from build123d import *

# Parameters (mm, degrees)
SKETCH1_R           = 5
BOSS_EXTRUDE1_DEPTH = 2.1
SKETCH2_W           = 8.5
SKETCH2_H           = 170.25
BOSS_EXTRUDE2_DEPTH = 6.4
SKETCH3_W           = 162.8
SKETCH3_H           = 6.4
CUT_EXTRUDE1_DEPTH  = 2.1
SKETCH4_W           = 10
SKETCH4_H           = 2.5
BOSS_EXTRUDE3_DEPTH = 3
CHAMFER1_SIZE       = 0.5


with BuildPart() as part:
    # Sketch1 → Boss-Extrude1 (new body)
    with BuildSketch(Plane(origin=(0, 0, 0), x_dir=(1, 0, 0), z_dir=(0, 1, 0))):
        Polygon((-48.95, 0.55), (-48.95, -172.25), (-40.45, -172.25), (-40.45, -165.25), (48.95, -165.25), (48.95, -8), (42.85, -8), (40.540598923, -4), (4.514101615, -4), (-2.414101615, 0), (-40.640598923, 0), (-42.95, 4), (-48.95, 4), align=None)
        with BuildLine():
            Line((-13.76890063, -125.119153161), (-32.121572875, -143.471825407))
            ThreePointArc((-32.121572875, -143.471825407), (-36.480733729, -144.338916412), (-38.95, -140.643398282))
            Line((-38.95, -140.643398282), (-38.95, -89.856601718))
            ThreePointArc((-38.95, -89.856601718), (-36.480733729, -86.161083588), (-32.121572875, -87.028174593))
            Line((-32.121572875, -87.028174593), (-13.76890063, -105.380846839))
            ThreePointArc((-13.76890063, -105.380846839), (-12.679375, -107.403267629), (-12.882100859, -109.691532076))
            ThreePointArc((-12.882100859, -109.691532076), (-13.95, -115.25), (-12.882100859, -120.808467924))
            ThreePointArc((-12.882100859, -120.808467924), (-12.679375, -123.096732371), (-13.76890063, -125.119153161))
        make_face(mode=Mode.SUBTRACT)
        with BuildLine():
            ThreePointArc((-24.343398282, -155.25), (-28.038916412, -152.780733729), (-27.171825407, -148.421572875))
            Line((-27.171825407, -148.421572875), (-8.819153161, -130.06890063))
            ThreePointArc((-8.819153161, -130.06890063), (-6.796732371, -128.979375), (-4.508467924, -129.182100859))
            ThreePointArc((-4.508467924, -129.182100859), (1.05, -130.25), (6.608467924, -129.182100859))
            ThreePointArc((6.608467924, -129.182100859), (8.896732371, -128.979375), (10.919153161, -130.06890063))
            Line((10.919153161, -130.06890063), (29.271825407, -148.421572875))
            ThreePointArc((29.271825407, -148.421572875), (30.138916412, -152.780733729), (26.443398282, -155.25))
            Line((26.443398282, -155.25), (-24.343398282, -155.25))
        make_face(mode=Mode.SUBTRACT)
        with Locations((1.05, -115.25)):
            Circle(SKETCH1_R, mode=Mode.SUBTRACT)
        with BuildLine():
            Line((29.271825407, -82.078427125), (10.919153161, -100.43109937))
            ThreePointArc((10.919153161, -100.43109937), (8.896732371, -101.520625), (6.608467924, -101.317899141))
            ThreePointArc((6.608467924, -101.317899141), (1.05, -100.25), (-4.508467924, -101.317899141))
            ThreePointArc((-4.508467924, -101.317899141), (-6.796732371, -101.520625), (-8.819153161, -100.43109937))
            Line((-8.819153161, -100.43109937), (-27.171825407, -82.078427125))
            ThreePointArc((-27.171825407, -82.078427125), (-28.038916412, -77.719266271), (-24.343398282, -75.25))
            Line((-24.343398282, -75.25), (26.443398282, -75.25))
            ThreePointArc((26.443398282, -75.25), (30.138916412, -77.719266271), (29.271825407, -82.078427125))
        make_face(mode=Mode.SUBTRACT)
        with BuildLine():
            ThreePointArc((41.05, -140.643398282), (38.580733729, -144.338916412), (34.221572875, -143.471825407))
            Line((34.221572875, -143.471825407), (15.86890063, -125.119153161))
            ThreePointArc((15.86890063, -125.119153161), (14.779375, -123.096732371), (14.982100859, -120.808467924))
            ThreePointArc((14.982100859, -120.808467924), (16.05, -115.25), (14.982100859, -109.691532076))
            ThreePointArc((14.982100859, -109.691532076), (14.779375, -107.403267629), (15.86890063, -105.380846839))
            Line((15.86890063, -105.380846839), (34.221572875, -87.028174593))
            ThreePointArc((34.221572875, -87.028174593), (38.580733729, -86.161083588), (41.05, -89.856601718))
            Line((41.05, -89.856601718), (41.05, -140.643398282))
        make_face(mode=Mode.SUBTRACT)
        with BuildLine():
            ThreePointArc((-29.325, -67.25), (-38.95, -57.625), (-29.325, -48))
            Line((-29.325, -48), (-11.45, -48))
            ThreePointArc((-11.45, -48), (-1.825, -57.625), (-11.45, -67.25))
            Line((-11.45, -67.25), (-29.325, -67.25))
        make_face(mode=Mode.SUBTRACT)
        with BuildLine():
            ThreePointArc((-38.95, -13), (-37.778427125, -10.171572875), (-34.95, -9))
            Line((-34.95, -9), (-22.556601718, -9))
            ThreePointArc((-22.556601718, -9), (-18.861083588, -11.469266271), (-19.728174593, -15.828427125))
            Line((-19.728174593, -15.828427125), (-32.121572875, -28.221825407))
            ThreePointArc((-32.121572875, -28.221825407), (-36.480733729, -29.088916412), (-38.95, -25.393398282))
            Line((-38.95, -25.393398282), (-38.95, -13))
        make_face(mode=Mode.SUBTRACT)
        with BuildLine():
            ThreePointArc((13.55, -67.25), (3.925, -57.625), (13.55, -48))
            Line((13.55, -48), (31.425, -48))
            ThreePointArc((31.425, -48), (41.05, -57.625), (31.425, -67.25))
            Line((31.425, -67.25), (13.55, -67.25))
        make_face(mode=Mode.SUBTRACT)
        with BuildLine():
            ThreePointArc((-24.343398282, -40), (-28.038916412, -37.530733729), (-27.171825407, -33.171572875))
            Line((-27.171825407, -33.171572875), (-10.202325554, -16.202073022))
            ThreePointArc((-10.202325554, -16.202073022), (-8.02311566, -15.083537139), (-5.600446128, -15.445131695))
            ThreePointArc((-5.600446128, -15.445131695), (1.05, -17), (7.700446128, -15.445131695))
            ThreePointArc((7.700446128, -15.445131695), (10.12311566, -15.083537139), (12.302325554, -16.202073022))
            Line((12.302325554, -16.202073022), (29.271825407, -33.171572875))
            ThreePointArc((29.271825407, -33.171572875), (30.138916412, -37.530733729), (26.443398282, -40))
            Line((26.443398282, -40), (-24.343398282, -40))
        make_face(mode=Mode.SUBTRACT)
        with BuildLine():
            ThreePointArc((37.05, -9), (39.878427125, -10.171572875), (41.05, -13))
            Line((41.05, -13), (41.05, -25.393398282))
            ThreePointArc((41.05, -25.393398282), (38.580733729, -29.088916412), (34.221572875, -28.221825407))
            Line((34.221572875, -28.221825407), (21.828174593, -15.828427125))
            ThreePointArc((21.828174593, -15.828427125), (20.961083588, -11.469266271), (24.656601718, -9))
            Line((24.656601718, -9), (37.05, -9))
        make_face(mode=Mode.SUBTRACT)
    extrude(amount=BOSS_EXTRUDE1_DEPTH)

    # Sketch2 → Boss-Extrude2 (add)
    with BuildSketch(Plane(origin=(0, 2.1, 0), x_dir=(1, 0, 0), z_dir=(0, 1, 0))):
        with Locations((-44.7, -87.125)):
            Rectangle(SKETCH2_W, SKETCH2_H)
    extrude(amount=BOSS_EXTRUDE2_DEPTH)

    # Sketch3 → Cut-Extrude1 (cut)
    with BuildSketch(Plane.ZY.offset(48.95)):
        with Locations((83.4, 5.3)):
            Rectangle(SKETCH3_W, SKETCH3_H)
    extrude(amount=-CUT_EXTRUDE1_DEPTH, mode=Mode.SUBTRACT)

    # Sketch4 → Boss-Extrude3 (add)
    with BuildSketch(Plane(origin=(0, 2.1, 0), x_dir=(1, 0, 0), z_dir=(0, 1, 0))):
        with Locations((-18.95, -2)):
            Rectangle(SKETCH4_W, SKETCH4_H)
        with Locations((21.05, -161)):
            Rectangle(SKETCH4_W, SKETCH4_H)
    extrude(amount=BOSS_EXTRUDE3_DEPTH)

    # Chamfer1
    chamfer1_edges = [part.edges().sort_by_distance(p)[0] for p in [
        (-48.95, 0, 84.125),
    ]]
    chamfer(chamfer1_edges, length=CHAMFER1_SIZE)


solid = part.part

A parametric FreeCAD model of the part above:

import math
import FreeCAD as App
import Part
import Sketcher
Q = App.Units.Quantity


def edges_at(feature, points):
    """Names of the edges that pass closest to the given points."""
    edges = feature.Shape.Edges
    near = lambda p: min(range(len(edges)), key=lambda i: edges[i].distToShape(Part.Vertex(*p))[0])
    return sorted({f"Edge{near(p) + 1}" for p in points})

doc = App.newDocument("Part")
body = doc.addObject("PartDesign::Body", "Body")

sketch1 = doc.addObject("Sketcher::SketchObject", "Sketch")
body.addObject(sketch1)
sketch1.AttachmentSupport = (doc.XZ_Plane, [""])
sketch1.MapMode = "FlatFace"
sketch1.addGeometry([
    Part.LineSegment(App.Vector(-49, 172.2, 0), App.Vector(-40.5, 172.2, 0)),
    Part.LineSegment(App.Vector(-40.5, 172.2, 0), App.Vector(-40.5, 165.2, 0)),
    Part.LineSegment(App.Vector(-40.5, 165.2, 0), App.Vector(49, 165.2, 0)),
    Part.LineSegment(App.Vector(49, 165.2, 0), App.Vector(49, 8, 0)),
    Part.LineSegment(App.Vector(49, 8, 0), App.Vector(42.9, 8, 0)),
    Part.LineSegment(App.Vector(42.9, 8, 0), App.Vector(40.5, 4, 0)),
    Part.LineSegment(App.Vector(40.5, 4, 0), App.Vector(4.5, 4, 0)),
    Part.LineSegment(App.Vector(4.5, 4, 0), App.Vector(-2.4, 0, 0)),
    Part.LineSegment(App.Vector(-2.4, 0, 0), App.Vector(-40.6, 0, 0)),
    Part.LineSegment(App.Vector(-40.6, 0, 0), App.Vector(-43, -4, 0)),
    Part.LineSegment(App.Vector(-43, -4, 0), App.Vector(-49, -4, 0)),
    Part.LineSegment(App.Vector(-49, -4, 0), App.Vector(-49, 172.2, 0)),
    Part.ArcOfCircle(Part.Circle(App.Vector(-16.6, 122.3, 0), App.Vector(0, 0, 1), 4), math.radians(-22), math.radians(45)),
    Part.LineSegment(App.Vector(-13.8, 125.1, 0), App.Vector(-32.1, 143.5, 0)),
    Part.ArcOfCircle(Part.Circle(App.Vector(-35, 140.6, 0), App.Vector(0, 0, 1), 4), math.radians(45), math.radians(180)),
    Part.LineSegment(App.Vector(-39, 140.6, 0), App.Vector(-39, 89.9, 0)),
    Part.ArcOfCircle(Part.Circle(App.Vector(-35, 89.9, 0), App.Vector(0, 0, 1), 4), math.radians(-180), math.radians(-45)),
    Part.LineSegment(App.Vector(-32.1, 87, 0), App.Vector(-13.8, 105.4, 0)),
    Part.ArcOfCircle(Part.Circle(App.Vector(-16.6, 108.2, 0), App.Vector(0, 0, 1), 4), math.radians(-45), math.radians(22)),
    Part.ArcOfCircle(Part.Circle(App.Vector(1.1, 115.2, 0), App.Vector(0, 0, 1), 15), math.radians(158), math.radians(202)),
    Part.LineSegment(App.Vector(26.4, 155.2, 0), App.Vector(-24.3, 155.2, 0)),
    Part.ArcOfCircle(Part.Circle(App.Vector(-24.3, 151.2, 0), App.Vector(0, 0, 1), 4), math.radians(90), math.radians(225)),
    Part.LineSegment(App.Vector(-27.2, 148.4, 0), App.Vector(-8.8, 130.1, 0)),
    Part.ArcOfCircle(Part.Circle(App.Vector(-6, 132.9, 0), App.Vector(0, 0, 1), 4), math.radians(-135), math.radians(-68)),
    Part.ArcOfCircle(Part.Circle(App.Vector(1.1, 115.2, 0), App.Vector(0, 0, 1), 15), math.radians(68), math.radians(112)),
    Part.ArcOfCircle(Part.Circle(App.Vector(8.1, 132.9, 0), App.Vector(0, 0, 1), 4), math.radians(-112), math.radians(-45)),
    Part.LineSegment(App.Vector(10.9, 130.1, 0), App.Vector(29.3, 148.4, 0)),
    Part.ArcOfCircle(Part.Circle(App.Vector(26.4, 151.2, 0), App.Vector(0, 0, 1), 4), math.radians(-45), math.radians(90)),
    Part.Circle(App.Vector(1.1, 115.2, 0), App.Vector(0, 0, 1), 5),
    Part.ArcOfCircle(Part.Circle(App.Vector(26.4, 79.2, 0), App.Vector(0, 0, 1), 4), math.radians(-90), math.radians(45)),
    Part.LineSegment(App.Vector(29.3, 82.1, 0), App.Vector(10.9, 100.4, 0)),
    Part.ArcOfCircle(Part.Circle(App.Vector(8.1, 97.6, 0), App.Vector(0, 0, 1), 4), math.radians(45), math.radians(112)),
    Part.ArcOfCircle(Part.Circle(App.Vector(1.1, 115.3, 0), App.Vector(0, 0, 1), 15), math.radians(-112), math.radians(-68)),
    Part.ArcOfCircle(Part.Circle(App.Vector(-6, 97.6, 0), App.Vector(0, 0, 1), 4), math.radians(68), math.radians(135)),
    Part.LineSegment(App.Vector(-8.8, 100.4, 0), App.Vector(-27.2, 82.1, 0)),
    Part.ArcOfCircle(Part.Circle(App.Vector(-24.3, 79.2, 0), App.Vector(0, 0, 1), 4), math.radians(135), math.radians(270)),
    Part.LineSegment(App.Vector(-24.3, 75.2, 0), App.Vector(26.4, 75.2, 0)),
    Part.LineSegment(App.Vector(41, 89.9, 0), App.Vector(41, 140.6, 0)),
    Part.ArcOfCircle(Part.Circle(App.Vector(37, 140.6, 0), App.Vector(0, 0, 1), 4), math.radians(0), math.radians(135)),
    Part.LineSegment(App.Vector(34.2, 143.5, 0), App.Vector(15.9, 125.1, 0)),
    Part.ArcOfCircle(Part.Circle(App.Vector(18.7, 122.3, 0), App.Vector(0, 0, 1), 4), math.radians(135), math.radians(202)),
    Part.ArcOfCircle(Part.Circle(App.Vector(1, 115.2, 0), App.Vector(0, 0, 1), 15), math.radians(-22), math.radians(22)),
    Part.ArcOfCircle(Part.Circle(App.Vector(18.7, 108.2, 0), App.Vector(0, 0, 1), 4), math.radians(158), math.radians(225)),
    Part.LineSegment(App.Vector(15.9, 105.4, 0), App.Vector(34.2, 87, 0)),
    Part.ArcOfCircle(Part.Circle(App.Vector(37, 89.9, 0), App.Vector(0, 0, 1), 4), math.radians(-135), math.radians(0)),
    Part.LineSegment(App.Vector(-11.4, 67.2, 0), App.Vector(-29.3, 67.2, 0)),
    Part.ArcOfCircle(Part.Circle(App.Vector(-29.3, 57.6, 0), App.Vector(0, 0, 1), 9.6), math.radians(90), math.radians(270)),
    Part.LineSegment(App.Vector(-29.3, 48, 0), App.Vector(-11.4, 48, 0)),
    Part.ArcOfCircle(Part.Circle(App.Vector(-11.4, 57.6, 0), App.Vector(0, 0, 1), 9.6), math.radians(-90), math.radians(90)),
    Part.LineSegment(App.Vector(-39, 25.4, 0), App.Vector(-39, 13, 0)),
    Part.ArcOfCircle(Part.Circle(App.Vector(-35, 13, 0), App.Vector(0, 0, 1), 4), math.radians(180), math.radians(270)),
    Part.LineSegment(App.Vector(-35, 9, 0), App.Vector(-22.6, 9, 0)),
    Part.ArcOfCircle(Part.Circle(App.Vector(-22.6, 13, 0), App.Vector(0, 0, 1), 4), math.radians(-90), math.radians(45)),
    Part.LineSegment(App.Vector(-19.7, 15.8, 0), App.Vector(-32.1, 28.2, 0)),
    Part.ArcOfCircle(Part.Circle(App.Vector(-35, 25.4, 0), App.Vector(0, 0, 1), 4), math.radians(45), math.radians(180)),
    Part.LineSegment(App.Vector(31.4, 67.2, 0), App.Vector(13.6, 67.2, 0)),
    Part.ArcOfCircle(Part.Circle(App.Vector(13.6, 57.6, 0), App.Vector(0, 0, 1), 9.6), math.radians(90), math.radians(270)),
    Part.LineSegment(App.Vector(13.6, 48, 0), App.Vector(31.4, 48, 0)),
    Part.ArcOfCircle(Part.Circle(App.Vector(31.4, 57.6, 0), App.Vector(0, 0, 1), 9.6), math.radians(-90), math.radians(90)),
    Part.LineSegment(App.Vector(26.4, 40, 0), App.Vector(-24.3, 40, 0)),
    Part.ArcOfCircle(Part.Circle(App.Vector(-24.3, 36, 0), App.Vector(0, 0, 1), 4), math.radians(90), math.radians(225)),
    Part.LineSegment(App.Vector(-27.2, 33.2, 0), App.Vector(-10.2, 16.2, 0)),
    Part.ArcOfCircle(Part.Circle(App.Vector(-7.4, 19, 0), App.Vector(0, 0, 1), 4), math.radians(-135), math.radians(-64)),
    Part.ArcOfCircle(Part.Circle(App.Vector(1.1, 2, 0), App.Vector(0, 0, 1), 15), math.radians(64), math.radians(116)),
    Part.ArcOfCircle(Part.Circle(App.Vector(9.5, 19, 0), App.Vector(0, 0, 1), 4), math.radians(-116), math.radians(-45)),
    Part.LineSegment(App.Vector(12.3, 16.2, 0), App.Vector(29.3, 33.2, 0)),
    Part.ArcOfCircle(Part.Circle(App.Vector(26.4, 36, 0), App.Vector(0, 0, 1), 4), math.radians(-45), math.radians(90)),
    Part.LineSegment(App.Vector(24.7, 9, 0), App.Vector(37, 9, 0)),
    Part.ArcOfCircle(Part.Circle(App.Vector(37.1, 13, 0), App.Vector(0, 0, 1), 4), math.radians(-90), math.radians(0)),
    Part.LineSegment(App.Vector(41, 13, 0), App.Vector(41, 25.4, 0)),
    Part.ArcOfCircle(Part.Circle(App.Vector(37, 25.4, 0), App.Vector(0, 0, 1), 4), math.radians(0), math.radians(135)),
    Part.LineSegment(App.Vector(34.2, 28.2, 0), App.Vector(21.8, 15.8, 0)),
    Part.ArcOfCircle(Part.Circle(App.Vector(24.7, 13, 0), App.Vector(0, 0, 1), 4), math.radians(135), math.radians(270)),
], False)
sketch1.addConstraint([
    Sketcher.Constraint("Coincident", 0, 2, 1, 1),
    Sketcher.Constraint("Coincident", 1, 2, 2, 1),
    Sketcher.Constraint("Coincident", 2, 2, 3, 1),
    Sketcher.Constraint("Coincident", 3, 2, 4, 1),
    Sketcher.Constraint("Coincident", 4, 2, 5, 1),
    Sketcher.Constraint("Coincident", 5, 2, 6, 1),
    Sketcher.Constraint("Coincident", 6, 2, 7, 1),
    Sketcher.Constraint("Coincident", 7, 2, 8, 1),
    Sketcher.Constraint("Coincident", 8, 2, 9, 1),
    Sketcher.Constraint("Coincident", 9, 2, 10, 1),
    Sketcher.Constraint("Coincident", 10, 2, 11, 1),
    Sketcher.Constraint("Coincident", 11, 2, 0, 1),
    Sketcher.Constraint("Tangent", 12, 2, 13, 1),
    Sketcher.Constraint("Tangent", 13, 2, 14, 1),
    Sketcher.Constraint("Tangent", 14, 2, 15, 1),
    Sketcher.Constraint("Tangent", 15, 2, 16, 1),
    Sketcher.Constraint("Tangent", 16, 2, 17, 1),
    Sketcher.Constraint("Tangent", 17, 2, 18, 1),
    Sketcher.Constraint("Tangent", 18, 2, 19, 2),
    Sketcher.Constraint("Tangent", 19, 1, 12, 1),
    Sketcher.Constraint("Tangent", 20, 2, 21, 1),
    Sketcher.Constraint("Tangent", 21, 2, 22, 1),
    Sketcher.Constraint("Tangent", 22, 2, 23, 1),
    Sketcher.Constraint("Tangent", 23, 2, 24, 2),
    Sketcher.Constraint("Tangent", 24, 1, 25, 1),
    Sketcher.Constraint("Tangent", 25, 2, 26, 1),
    Sketcher.Constraint("Tangent", 26, 2, 27, 1),
    Sketcher.Constraint("Tangent", 27, 2, 20, 1),
    Sketcher.Constraint("Tangent", 29, 2, 30, 1),
    Sketcher.Constraint("Tangent", 30, 2, 31, 1),
    Sketcher.Constraint("Tangent", 31, 2, 32, 2),
    Sketcher.Constraint("Tangent", 32, 1, 33, 1),
    Sketcher.Constraint("Tangent", 33, 2, 34, 1),
    Sketcher.Constraint("Tangent", 34, 2, 35, 1),
    Sketcher.Constraint("Tangent", 35, 2, 36, 1),
    Sketcher.Constraint("Tangent", 36, 2, 29, 1),
    Sketcher.Constraint("Tangent", 37, 2, 38, 1),
    Sketcher.Constraint("Tangent", 38, 2, 39, 1),
    Sketcher.Constraint("Tangent", 39, 2, 40, 1),
    Sketcher.Constraint("Tangent", 40, 2, 41, 2),
    Sketcher.Constraint("Tangent", 41, 1, 42, 1),
    Sketcher.Constraint("Tangent", 42, 2, 43, 1),
    Sketcher.Constraint("Tangent", 43, 2, 44, 1),
    Sketcher.Constraint("Tangent", 44, 2, 37, 1),
    Sketcher.Constraint("Tangent", 45, 2, 46, 1),
    Sketcher.Constraint("Tangent", 46, 2, 47, 1),
    Sketcher.Constraint("Tangent", 47, 2, 48, 1),
    Sketcher.Constraint("Tangent", 48, 2, 45, 1),
    Sketcher.Constraint("Tangent", 49, 2, 50, 1),
    Sketcher.Constraint("Tangent", 50, 2, 51, 1),
    Sketcher.Constraint("Tangent", 51, 2, 52, 1),
    Sketcher.Constraint("Tangent", 52, 2, 53, 1),
    Sketcher.Constraint("Tangent", 53, 2, 54, 1),
    Sketcher.Constraint("Tangent", 54, 2, 49, 1),
    Sketcher.Constraint("Tangent", 55, 2, 56, 1),
    Sketcher.Constraint("Tangent", 56, 2, 57, 1),
    Sketcher.Constraint("Tangent", 57, 2, 58, 1),
    Sketcher.Constraint("Tangent", 58, 2, 55, 1),
    Sketcher.Constraint("Tangent", 59, 2, 60, 1),
    Sketcher.Constraint("Tangent", 60, 2, 61, 1),
    Sketcher.Constraint("Tangent", 61, 2, 62, 1),
    Sketcher.Constraint("Tangent", 62, 2, 63, 2),
    Sketcher.Constraint("Tangent", 63, 1, 64, 1),
    Sketcher.Constraint("Tangent", 64, 2, 65, 1),
    Sketcher.Constraint("Tangent", 65, 2, 66, 1),
    Sketcher.Constraint("Tangent", 66, 2, 59, 1),
    Sketcher.Constraint("Tangent", 67, 2, 68, 1),
    Sketcher.Constraint("Tangent", 68, 2, 69, 1),
    Sketcher.Constraint("Tangent", 69, 2, 70, 1),
    Sketcher.Constraint("Tangent", 70, 2, 71, 1),
    Sketcher.Constraint("Tangent", 71, 2, 72, 1),
    Sketcher.Constraint("Tangent", 72, 2, 67, 1),
    Sketcher.Constraint("Horizontal", 0),
    Sketcher.Constraint("Vertical", 1),
    Sketcher.Constraint("Horizontal", 2),
    Sketcher.Constraint("Vertical", 3),
    Sketcher.Constraint("Horizontal", 4),
    Sketcher.Constraint("Horizontal", 6),
    Sketcher.Constraint("Horizontal", 8),
    Sketcher.Constraint("Horizontal", 10),
    Sketcher.Constraint("Vertical", 11),
    Sketcher.Constraint("Vertical", 15),
    Sketcher.Constraint("Horizontal", 20),
    Sketcher.Constraint("Horizontal", 36),
    Sketcher.Constraint("Vertical", 37),
    Sketcher.Constraint("Horizontal", 45),
    Sketcher.Constraint("Horizontal", 47),
    Sketcher.Constraint("Vertical", 49),
    Sketcher.Constraint("Horizontal", 51),
    Sketcher.Constraint("Horizontal", 55),
    Sketcher.Constraint("Horizontal", 57),
    Sketcher.Constraint("Horizontal", 59),
    Sketcher.Constraint("Horizontal", 67),
    Sketcher.Constraint("Vertical", 69),
    Sketcher.Constraint("Coincident", 24, 3, 19, 3),
    Sketcher.Constraint("Coincident", 28, 3, 19, 3),
    Sketcher.Constraint("Coincident", 32, 3, 19, 3),
    Sketcher.Constraint("Coincident", 41, 3, 19, 3),
    Sketcher.Constraint("Equal", 12, 14),
    Sketcher.Constraint("Equal", 14, 16),
    Sketcher.Constraint("Equal", 16, 18),
    Sketcher.Constraint("Equal", 18, 21),
    Sketcher.Constraint("Equal", 21, 23),
    Sketcher.Constraint("Equal", 19, 24),
    Sketcher.Constraint("Equal", 23, 25),
    Sketcher.Constraint("Equal", 25, 27),
    Sketcher.Constraint("Equal", 27, 29),
    Sketcher.Constraint("Equal", 29, 31),
    Sketcher.Constraint("Equal", 24, 32),
    Sketcher.Constraint("Equal", 31, 33),
    Sketcher.Constraint("Equal", 33, 35),
    Sketcher.Constraint("Equal", 35, 38),
    Sketcher.Constraint("Equal", 38, 40),
    Sketcher.Constraint("Equal", 32, 41),
    Sketcher.Constraint("Equal", 40, 42),
    Sketcher.Constraint("Equal", 42, 44),
    Sketcher.Constraint("Equal", 44, 50),
    Sketcher.Constraint("Equal", 50, 52),
    Sketcher.Constraint("Equal", 52, 54),
    Sketcher.Constraint("Equal", 48, 56),
    Sketcher.Constraint("Equal", 54, 60),
    Sketcher.Constraint("Equal", 60, 62),
    Sketcher.Constraint("Equal", 41, 63),
    Sketcher.Constraint("Equal", 62, 64),
    Sketcher.Constraint("Equal", 64, 66),
    Sketcher.Constraint("Equal", 66, 68),
    Sketcher.Constraint("Equal", 68, 70),
    Sketcher.Constraint("Equal", 70, 72),
    Sketcher.Constraint("PointOnObject", 7, 2, -1),
    Sketcher.Constraint("Parallel", 5, 9),
    Sketcher.Constraint("Perpendicular", 13, 17),
    Sketcher.Constraint("Perpendicular", 17, 22),
    Sketcher.Constraint("Perpendicular", 22, 26),
    Sketcher.Constraint("Perpendicular", 26, 30),
    Sketcher.Constraint("Perpendicular", 30, 34),
    Sketcher.Constraint("Parallel", 34, 39),
    Sketcher.Constraint("Perpendicular", 39, 43),
    Sketcher.Constraint("Parallel", 43, 53),
    Sketcher.Constraint("Parallel", 53, 61),
    Sketcher.Constraint("Perpendicular", 61, 65),
    Sketcher.Constraint("Parallel", 65, 71),
    Sketcher.Constraint("Horizontal", 23, 3, 25, 3),
    Sketcher.Constraint("Horizontal", 31, 3, 33, 3),
    Sketcher.Constraint("Horizontal", 14, 3, 38, 3),
    Sketcher.Constraint("Horizontal", 12, 3, 40, 3),
    Sketcher.Constraint("Horizontal", 18, 3, 42, 3),
    Sketcher.Constraint("Horizontal", 16, 3, 44, 3),
    Sketcher.Constraint("Horizontal", 48, 3, 56, 3),
    Sketcher.Constraint("Horizontal", 62, 3, 64, 3),
    Sketcher.Constraint("Horizontal", 52, 3, 68, 3),
    Sketcher.Constraint("Horizontal", 54, 3, 70, 3),
    Sketcher.Constraint("Vertical", 12, 3, 18, 3),
    Sketcher.Constraint("Vertical", 27, 3, 29, 3),
    Sketcher.Constraint("Vertical", 25, 3, 31, 3),
    Sketcher.Constraint("Vertical", 16, 3, 50, 3),
    Sketcher.Constraint("Vertical", 35, 3, 60, 3),
    Sketcher.Constraint("Vertical", 41, 3, 63, 3),
    Sketcher.Constraint("Vertical", 44, 3, 68, 3),
    Sketcher.Constraint("Equal", 47, 55),
    Sketcher.Constraint("Equal", 59, 15),
    Sketcher.Constraint("Equal", 5, 9),
    Sketcher.Constraint("Equal", 17, 22),
    Sketcher.Constraint("Diameter", 28, 10.0),
    Sketcher.Constraint("Radius", 12, 4.0),
    Sketcher.Constraint("Radius", 19, 15.0),
    Sketcher.Constraint("DistanceX", 10, 2, 10, 1, 6.0),
    Sketcher.Constraint("DistanceY", 1, 2, 1, 1, 7.0),
    Sketcher.Constraint("Angle", 5, Q("-120 deg")),
    Sketcher.Constraint("Angle", 7, Q("-150 deg")),
    Sketcher.Constraint("Distance", 7, 8.0),
    Sketcher.Constraint("DistanceX", 0, 1, 0, 2, 8.5),
    Sketcher.Constraint("DistanceX", 2, 1, 2, 2, 89.4),
    Sketcher.Constraint("DistanceX", 4, 2, 4, 1, 6.1),
    Sketcher.Constraint("DistanceY", -1, 1, 50, 3, 13.0),
    Sketcher.Constraint("DistanceY", -1, 1, 60, 3, 36.0),
    Sketcher.Constraint("DistanceY", -1, 1, 63, 3, 2.0),
    Sketcher.Constraint("DistanceY", -1, 1, 3, 2, 8.0),
    Sketcher.Constraint("DistanceY", -1, 1, 46, 2, 48.0),
    Sketcher.Constraint("Radius", 46, 9.625),
    Sketcher.Constraint("DistanceY", 3, 2, 3, 1, 157.25),
    Sketcher.Constraint("DistanceX", 45, 2, 45, 1, 17.875),
    Sketcher.Constraint("DistanceX", 14, 3, -1, 1, 34.95),
    Sketcher.Constraint("DistanceX", -1, 1, 19, 3, 1.05),
    Sketcher.Constraint("DistanceY", -1, 1, 19, 3, 115.25),
    Sketcher.Constraint("DistanceX", 48, 3, -1, 1, 11.45),
    Sketcher.Constraint("DistanceX", -1, 1, 56, 3, 13.55),
    Sketcher.Constraint("DistanceX", 0, 2, -1, 1, 40.45),
    Sketcher.Constraint("DistanceX", 51, 1, 51, 2, 12.393398),
    Sketcher.Constraint("DistanceY", -1, 1, 14, 3, 140.643398),
    Sketcher.Constraint("DistanceX", -1, 1, 6, 2, 4.514102),
])
pad1 = doc.addObject("PartDesign::Pad", "Pad")
body.addObject(pad1)
pad1.Profile = sketch1
pad1.Length = 2.1
pad1.Reversed = True

sketch2 = doc.addObject("Sketcher::SketchObject", "Sketch001")
body.addObject(sketch2)
sketch2.AttachmentSupport = (doc.XZ_Plane, [""])
sketch2.MapMode = "FlatFace"
sketch2.AttachmentOffset = App.Placement(App.Vector(0, 0, -2.1), App.Rotation())
sketch2.addGeometry([
    Part.LineSegment(App.Vector(-49, 2, 0), App.Vector(-49, 172, 0)),
    Part.LineSegment(App.Vector(-49, 172, 0), App.Vector(-40, 172, 0)),
    Part.LineSegment(App.Vector(-40, 172, 0), App.Vector(-40, 2, 0)),
    Part.LineSegment(App.Vector(-40, 2, 0), App.Vector(-49, 2, 0)),
], False)
sketch2.addConstraint([
    Sketcher.Constraint("Coincident", 0, 2, 1, 1),
    Sketcher.Constraint("Coincident", 1, 2, 2, 1),
    Sketcher.Constraint("Coincident", 2, 2, 3, 1),
    Sketcher.Constraint("Coincident", 3, 2, 0, 1),
    Sketcher.Constraint("Vertical", 0),
    Sketcher.Constraint("Horizontal", 1),
    Sketcher.Constraint("Vertical", 2),
    Sketcher.Constraint("Horizontal", 3),
    Sketcher.Constraint("DistanceX", 1, 1, 1, 2, 8.5),
    Sketcher.Constraint("DistanceY", -1, 1, 2, 2, 2.0),
    Sketcher.Constraint("DistanceY", 0, 1, 0, 2, 170.25),
    Sketcher.Constraint("DistanceX", 0, 2, -1, 1, 48.95),
])
pad2 = doc.addObject("PartDesign::Pad", "Pad001")
body.addObject(pad2)
pad2.Profile = sketch2
pad2.Length = 6.4
pad2.Reversed = True

sketch3 = doc.addObject("Sketcher::SketchObject", "Sketch002")
body.addObject(sketch3)
sketch3.AttachmentSupport = (doc.YZ_Plane, [""])
sketch3.MapMode = "FlatFace"
sketch3.AttachmentOffset = App.Placement(App.Vector(0, 0, -48.95), App.Rotation())
sketch3.addGeometry([
    Part.LineSegment(App.Vector(8, 2, 0), App.Vector(2, 2, 0)),
    Part.LineSegment(App.Vector(2, 2, 0), App.Vector(2, 165, 0)),
    Part.LineSegment(App.Vector(2, 165, 0), App.Vector(8, 165, 0)),
    Part.LineSegment(App.Vector(8, 165, 0), App.Vector(8, 2, 0)),
], False)
sketch3.addConstraint([
    Sketcher.Constraint("Coincident", 0, 2, 1, 1),
    Sketcher.Constraint("Coincident", 1, 2, 2, 1),
    Sketcher.Constraint("Coincident", 2, 2, 3, 1),
    Sketcher.Constraint("Coincident", 3, 2, 0, 1),
    Sketcher.Constraint("Horizontal", 0),
    Sketcher.Constraint("Vertical", 1),
    Sketcher.Constraint("Horizontal", 2),
    Sketcher.Constraint("Vertical", 3),
    Sketcher.Constraint("DistanceX", 0, 2, 0, 1, 6.4),
    Sketcher.Constraint("DistanceY", 1, 1, 1, 2, 162.8),
    Sketcher.Constraint("DistanceY", -1, 1, 0, 2, 2.0),
    Sketcher.Constraint("DistanceX", -1, 1, 0, 2, 2.1),
])
pocket1 = doc.addObject("PartDesign::Pocket", "Pocket")
body.addObject(pocket1)
pocket1.Profile = sketch3
pocket1.Length = 2.1
pocket1.Reversed = True

sketch4 = doc.addObject("Sketcher::SketchObject", "Sketch003")
body.addObject(sketch4)
sketch4.AttachmentSupport = (doc.XZ_Plane, [""])
sketch4.MapMode = "FlatFace"
sketch4.AttachmentOffset = App.Placement(App.Vector(0, 0, -2.1), App.Rotation())
sketch4.addGeometry([
    Part.LineSegment(App.Vector(-23.9, 0.8, 0), App.Vector(-23.9, 3.2, 0)),
    Part.LineSegment(App.Vector(-23.9, 3.2, 0), App.Vector(-13.9, 3.2, 0)),
    Part.LineSegment(App.Vector(-13.9, 3.2, 0), App.Vector(-13.9, 0.8, 0)),
    Part.LineSegment(App.Vector(-13.9, 0.8, 0), App.Vector(-23.9, 0.8, 0)),
    Part.LineSegment(App.Vector(16.1, 159.8, 0), App.Vector(16.1, 162.2, 0)),
    Part.LineSegment(App.Vector(16.1, 162.2, 0), App.Vector(26.1, 162.2, 0)),
    Part.LineSegment(App.Vector(26.1, 162.2, 0), App.Vector(26.1, 159.8, 0)),
    Part.LineSegment(App.Vector(26.1, 159.8, 0), App.Vector(16.1, 159.8, 0)),
], False)
sketch4.addConstraint([
    Sketcher.Constraint("Coincident", 0, 2, 1, 1),
    Sketcher.Constraint("Coincident", 1, 2, 2, 1),
    Sketcher.Constraint("Coincident", 2, 2, 3, 1),
    Sketcher.Constraint("Coincident", 3, 2, 0, 1),
    Sketcher.Constraint("Coincident", 4, 2, 5, 1),
    Sketcher.Constraint("Coincident", 5, 2, 6, 1),
    Sketcher.Constraint("Coincident", 6, 2, 7, 1),
    Sketcher.Constraint("Coincident", 7, 2, 4, 1),
    Sketcher.Constraint("Vertical", 0),
    Sketcher.Constraint("Horizontal", 1),
    Sketcher.Constraint("Vertical", 2),
    Sketcher.Constraint("Horizontal", 3),
    Sketcher.Constraint("Vertical", 4),
    Sketcher.Constraint("Horizontal", 5),
    Sketcher.Constraint("Vertical", 6),
    Sketcher.Constraint("Horizontal", 7),
    Sketcher.Constraint("Equal", 3, 5),
    Sketcher.Constraint("Equal", 2, 4),
    Sketcher.Constraint("DistanceX", 1, 1, 1, 2, 10.0),
    Sketcher.Constraint("DistanceY", 0, 1, 0, 2, 2.5),
    Sketcher.Constraint("DistanceX", 1, 2, 4, 2, 30.0),
    Sketcher.Constraint("DistanceY", 1, 2, 4, 2, 159.0),
    Sketcher.Constraint("DistanceX", 0, 2, -1, 1, 23.95),
    Sketcher.Constraint("DistanceY", -1, 1, 0, 2, 3.25),
])
pad3 = doc.addObject("PartDesign::Pad", "Pad002")
body.addObject(pad3)
pad3.Profile = sketch4
pad3.Length = 3
pad3.Reversed = True
doc.recompute()

chamfer = doc.addObject("PartDesign::Chamfer", "Chamfer")
body.addObject(chamfer)
chamfer.Base = (pad3, edges_at(pad3, [(-48.95, 0, 84.125)]))
chamfer.Size = 0.5

doc.recompute()
